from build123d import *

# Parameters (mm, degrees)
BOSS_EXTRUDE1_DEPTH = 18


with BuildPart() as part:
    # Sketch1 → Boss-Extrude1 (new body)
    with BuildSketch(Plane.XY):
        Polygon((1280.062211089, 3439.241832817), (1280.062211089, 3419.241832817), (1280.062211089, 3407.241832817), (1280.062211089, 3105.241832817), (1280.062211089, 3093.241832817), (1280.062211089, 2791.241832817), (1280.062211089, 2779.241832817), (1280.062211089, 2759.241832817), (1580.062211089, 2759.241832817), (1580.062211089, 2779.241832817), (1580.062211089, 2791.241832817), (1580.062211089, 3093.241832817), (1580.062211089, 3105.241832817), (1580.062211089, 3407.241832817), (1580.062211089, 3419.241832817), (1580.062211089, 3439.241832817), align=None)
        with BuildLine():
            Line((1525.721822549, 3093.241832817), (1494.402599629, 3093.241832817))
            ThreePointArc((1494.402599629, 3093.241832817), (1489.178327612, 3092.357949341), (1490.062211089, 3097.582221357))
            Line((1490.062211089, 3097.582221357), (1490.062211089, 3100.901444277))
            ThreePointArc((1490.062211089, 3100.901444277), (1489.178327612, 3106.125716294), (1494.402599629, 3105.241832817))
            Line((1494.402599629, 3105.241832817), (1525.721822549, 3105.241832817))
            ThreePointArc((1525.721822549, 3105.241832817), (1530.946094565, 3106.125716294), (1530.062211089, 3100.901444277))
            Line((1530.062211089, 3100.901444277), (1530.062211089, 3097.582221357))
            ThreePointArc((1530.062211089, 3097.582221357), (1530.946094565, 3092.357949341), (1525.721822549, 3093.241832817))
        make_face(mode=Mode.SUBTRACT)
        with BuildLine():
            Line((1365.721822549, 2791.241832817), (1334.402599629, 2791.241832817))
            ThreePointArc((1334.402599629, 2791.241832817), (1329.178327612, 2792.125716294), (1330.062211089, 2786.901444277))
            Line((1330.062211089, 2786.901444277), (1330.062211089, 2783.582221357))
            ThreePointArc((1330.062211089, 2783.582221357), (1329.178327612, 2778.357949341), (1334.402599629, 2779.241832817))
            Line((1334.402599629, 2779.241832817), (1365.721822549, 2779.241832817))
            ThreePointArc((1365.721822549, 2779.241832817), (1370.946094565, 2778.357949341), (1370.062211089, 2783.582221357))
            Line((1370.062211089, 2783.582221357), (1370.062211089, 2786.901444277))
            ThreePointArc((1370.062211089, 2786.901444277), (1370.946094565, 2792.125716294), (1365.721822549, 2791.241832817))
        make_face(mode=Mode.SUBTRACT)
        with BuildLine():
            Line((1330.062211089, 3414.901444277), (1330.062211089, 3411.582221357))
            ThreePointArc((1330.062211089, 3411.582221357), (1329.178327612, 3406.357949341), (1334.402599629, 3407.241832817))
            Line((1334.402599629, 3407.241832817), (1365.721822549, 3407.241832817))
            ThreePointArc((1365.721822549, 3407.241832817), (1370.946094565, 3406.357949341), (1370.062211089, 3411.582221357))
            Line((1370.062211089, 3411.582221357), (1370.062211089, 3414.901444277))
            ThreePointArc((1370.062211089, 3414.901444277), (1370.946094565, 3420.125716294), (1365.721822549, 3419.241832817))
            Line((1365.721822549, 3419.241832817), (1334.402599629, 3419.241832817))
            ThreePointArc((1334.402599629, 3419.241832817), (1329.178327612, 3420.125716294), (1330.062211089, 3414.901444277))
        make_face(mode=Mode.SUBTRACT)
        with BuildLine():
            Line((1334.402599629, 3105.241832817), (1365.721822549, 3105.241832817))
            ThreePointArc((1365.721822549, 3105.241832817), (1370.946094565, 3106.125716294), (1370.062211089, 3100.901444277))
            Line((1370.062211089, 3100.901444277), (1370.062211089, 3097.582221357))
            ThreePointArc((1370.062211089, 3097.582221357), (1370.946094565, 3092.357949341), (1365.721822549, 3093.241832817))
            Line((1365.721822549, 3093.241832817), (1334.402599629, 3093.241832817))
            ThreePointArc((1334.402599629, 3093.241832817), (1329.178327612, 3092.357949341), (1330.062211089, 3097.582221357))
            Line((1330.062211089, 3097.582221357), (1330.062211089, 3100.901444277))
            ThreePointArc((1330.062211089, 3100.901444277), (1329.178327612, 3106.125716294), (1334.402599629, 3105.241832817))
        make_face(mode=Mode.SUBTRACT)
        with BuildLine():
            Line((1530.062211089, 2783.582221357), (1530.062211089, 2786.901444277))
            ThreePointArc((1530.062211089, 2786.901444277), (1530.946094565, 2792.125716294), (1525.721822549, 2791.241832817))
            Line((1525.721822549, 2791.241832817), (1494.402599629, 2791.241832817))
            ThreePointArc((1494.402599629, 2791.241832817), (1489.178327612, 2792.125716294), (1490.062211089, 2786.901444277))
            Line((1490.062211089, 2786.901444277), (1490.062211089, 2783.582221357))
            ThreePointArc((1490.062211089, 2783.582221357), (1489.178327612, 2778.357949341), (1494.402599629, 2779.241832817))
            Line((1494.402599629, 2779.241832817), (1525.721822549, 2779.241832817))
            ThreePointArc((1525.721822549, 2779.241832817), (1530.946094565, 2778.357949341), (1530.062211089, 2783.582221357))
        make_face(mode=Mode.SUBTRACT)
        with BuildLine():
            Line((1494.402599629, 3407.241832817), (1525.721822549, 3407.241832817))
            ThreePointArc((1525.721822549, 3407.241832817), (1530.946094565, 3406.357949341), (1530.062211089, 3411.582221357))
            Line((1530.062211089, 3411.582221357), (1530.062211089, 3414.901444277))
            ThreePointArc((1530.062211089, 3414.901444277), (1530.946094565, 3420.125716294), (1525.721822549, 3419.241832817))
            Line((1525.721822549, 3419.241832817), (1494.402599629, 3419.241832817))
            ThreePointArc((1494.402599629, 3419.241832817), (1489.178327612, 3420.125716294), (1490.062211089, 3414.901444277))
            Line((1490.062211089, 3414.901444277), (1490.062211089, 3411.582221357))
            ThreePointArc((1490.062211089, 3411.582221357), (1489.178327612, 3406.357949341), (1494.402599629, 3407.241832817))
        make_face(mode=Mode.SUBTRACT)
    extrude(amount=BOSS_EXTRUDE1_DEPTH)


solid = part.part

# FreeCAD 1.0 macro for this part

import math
import FreeCAD as App
import Part
import Sketcher
from FreeCAD import Vector


def add_polygon(sketch, points):
    """Adds a closed chain of lines whose ends are joined by coincident constraints."""
    first, n = sketch.GeometryCount, len(points)
    for a, b in zip(points, points[1:] + points[:1]):
        sketch.addGeometry(Part.LineSegment(App.Vector(*a, 0), App.Vector(*b, 0)), False)
    for i in range(n):
        sketch.addConstraint(Sketcher.Constraint("Coincident", first + i, 2, first + (i + 1) % n, 1))

doc = App.newDocument("Part")
body = doc.addObject("PartDesign::Body", "Body")

# Sketch on XY plane
sketch1 = doc.addObject("Sketcher::SketchObject", "Sketch")
body.addObject(sketch1)
sketch1.AttachmentSupport = (doc.XY_Plane, [""])
sketch1.MapMode = "FlatFace"
add_polygon(sketch1, [(1280.062211, 3439.241833), (1280.062211, 2759.241833), (1580.062211, 2759.241833), (1580.062211, 3439.241833)])  # lines 0-3
sketch1.addGeometry(Part.LineSegment(Vector(1334.4026, 2791.241833, 0), Vector(1365.721823, 2791.241833, 0)), False)  # 4
sketch1.addGeometry(Part.ArcOfCircle(Part.Circle(Vector(1368.647998, 2789.827619, 0), Vector(0, 0, 1), 3.25), math.radians(-64.20563), math.radians(154.20563)), False)  # 5
sketch1.addGeometry(Part.LineSegment(Vector(1370.062211, 2786.901444, 0), Vector(1370.062211, 2783.582221, 0)), False)  # 6
sketch1.addGeometry(Part.ArcOfCircle(Part.Circle(Vector(1368.647998, 2780.656046, 0), Vector(0, 0, 1), 3.25), math.radians(-154.20563), math.radians(64.20563)), False)  # 7
sketch1.addGeometry(Part.LineSegment(Vector(1365.721823, 2779.241833, 0), Vector(1334.4026, 2779.241833, 0)), False)  # 8
sketch1.addGeometry(Part.ArcOfCircle(Part.Circle(Vector(1331.476425, 2780.656046, 0), Vector(0, 0, 1), 3.25), math.radians(115.79437), math.radians(334.20563)), False)  # 9
sketch1.addGeometry(Part.LineSegment(Vector(1330.062211, 2783.582221, 0), Vector(1330.062211, 2786.901444, 0)), False)  # 10
sketch1.addGeometry(Part.ArcOfCircle(Part.Circle(Vector(1331.476425, 2789.827619, 0), Vector(0, 0, 1), 3.25), math.radians(25.79437), math.radians(244.20563)), False)  # 11
sketch1.addGeometry(Part.ArcOfCircle(Part.Circle(Vector(1331.476425, 3103.827619, 0), Vector(0, 0, 1), 3.25), math.radians(25.79437), math.radians(244.20563)), False)  # 12
sketch1.addGeometry(Part.LineSegment(Vector(1334.4026, 3105.241833, 0), Vector(1365.721823, 3105.241833, 0)), False)  # 13
sketch1.addGeometry(Part.ArcOfCircle(Part.Circle(Vector(1368.647998, 3103.827619, 0), Vector(0, 0, 1), 3.25), math.radians(-64.20563), math.radians(154.20563)), False)  # 14
sketch1.addGeometry(Part.LineSegment(Vector(1370.062211, 3100.901444, 0), Vector(1370.062211, 3097.582221, 0)), False)  # 15
sketch1.addGeometry(Part.ArcOfCircle(Part.Circle(Vector(1368.647998, 3094.656046, 0), Vector(0, 0, 1), 3.25), math.radians(-154.20563), math.radians(64.20563)), False)  # 16
sketch1.addGeometry(Part.LineSegment(Vector(1365.721823, 3093.241833, 0), Vector(1334.4026, 3093.241833, 0)), False)  # 17
sketch1.addGeometry(Part.ArcOfCircle(Part.Circle(Vector(1331.476425, 3094.656046, 0), Vector(0, 0, 1), 3.25), math.radians(115.79437), math.radians(334.20563)), False)  # 18
sketch1.addGeometry(Part.LineSegment(Vector(1330.062211, 3097.582221, 0), Vector(1330.062211, 3100.901444, 0)), False)  # 19
sketch1.addGeometry(Part.LineSegment(Vector(1530.062211, 2786.901444, 0), Vector(1530.062211, 2783.582221, 0)), False)  # 20
sketch1.addGeometry(Part.ArcOfCircle(Part.Circle(Vector(1528.647998, 2780.656046, 0), Vector(0, 0, 1), 3.25), math.radians(-154.20563), math.radians(64.20563)), False)  # 21
sketch1.addGeometry(Part.LineSegment(Vector(1525.721823, 2779.241833, 0), Vector(1494.4026, 2779.241833, 0)), False)  # 22
sketch1.addGeometry(Part.ArcOfCircle(Part.Circle(Vector(1491.476425, 2780.656046, 0), Vector(0, 0, 1), 3.25), math.radians(115.79437), math.radians(334.20563)), False)  # 23
sketch1.addGeometry(Part.LineSegment(Vector(1490.062211, 2783.582221, 0), Vector(1490.062211, 2786.901444, 0)), False)  # 24
sketch1.addGeometry(Part.ArcOfCircle(Part.Circle(Vector(1491.476425, 2789.827619, 0), Vector(0, 0, 1), 3.25), math.radians(25.79437), math.radians(244.20563)), False)  # 25
sketch1.addGeometry(Part.LineSegment(Vector(1494.4026, 2791.241833, 0), Vector(1525.721823, 2791.241833, 0)), False)  # 26
sketch1.addGeometry(Part.ArcOfCircle(Part.Circle(Vector(1528.647998, 2789.827619, 0), Vector(0, 0, 1), 3.25), math.radians(-64.20563), math.radians(154.20563)), False)  # 27
sketch1.addGeometry(Part.ArcOfCircle(Part.Circle(Vector(1528.647998, 3094.656046, 0), Vector(0, 0, 1), 3.25), math.radians(-154.20563), math.radians(64.20563)), False)  # 28
sketch1.addGeometry(Part.LineSegment(Vector(1525.721823, 3093.241833, 0), Vector(1494.4026, 3093.241833, 0)), False)  # 29
sketch1.addGeometry(Part.ArcOfCircle(Part.Circle(Vector(1491.476425, 3094.656046, 0), Vector(0, 0, 1), 3.25), math.radians(115.79437), math.radians(334.20563)), False)  # 30
sketch1.addGeometry(Part.LineSegment(Vector(1490.062211, 3097.582221, 0), Vector(1490.062211, 3100.901444, 0)), False)  # 31
sketch1.addGeometry(Part.ArcOfCircle(Part.Circle(Vector(1491.476425, 3103.827619, 0), Vector(0, 0, 1), 3.25), math.radians(25.79437), math.radians(244.20563)), False)  # 32
sketch1.addGeometry(Part.LineSegment(Vector(1494.4026, 3105.241833, 0), Vector(1525.721823, 3105.241833, 0)), False)  # 33
sketch1.addGeometry(Part.ArcOfCircle(Part.Circle(Vector(1528.647998, 3103.827619, 0), Vector(0, 0, 1), 3.25), math.radians(-64.20563), math.radians(154.20563)), False)  # 34
sketch1.addGeometry(Part.LineSegment(Vector(1530.062211, 3100.901444, 0), Vector(1530.062211, 3097.582221, 0)), False)  # 35
sketch1.addGeometry(Part.LineSegment(Vector(1330.062211, 3411.582221, 0), Vector(1330.062211, 3414.901444, 0)), False)  # 36
sketch1.addGeometry(Part.ArcOfCircle(Part.Circle(Vector(1331.476425, 3417.827619, 0), Vector(0, 0, 1), 3.25), math.radians(25.79437), math.radians(244.20563)), False)  # 37
sketch1.addGeometry(Part.LineSegment(Vector(1334.4026, 3419.241833, 0), Vector(1365.721823, 3419.241833, 0)), False)  # 38
sketch1.addGeometry(Part.ArcOfCircle(Part.Circle(Vector(1368.647998, 3417.827619, 0), Vector(0, 0, 1), 3.25), math.radians(-64.20563), math.radians(154.20563)), False)  # 39
sketch1.addGeometry(Part.LineSegment(Vector(1370.062211, 3414.901444, 0), Vector(1370.062211, 3411.582221, 0)), False)  # 40
sketch1.addGeometry(Part.ArcOfCircle(Part.Circle(Vector(1368.647998, 3408.656046, 0), Vector(0, 0, 1), 3.25), math.radians(-154.20563), math.radians(64.20563)), False)  # 41
sketch1.addGeometry(Part.LineSegment(Vector(1365.721823, 3407.241833, 0), Vector(1334.4026, 3407.241833, 0)), False)  # 42
sketch1.addGeometry(Part.ArcOfCircle(Part.Circle(Vector(1331.476425, 3408.656046, 0), Vector(0, 0, 1), 3.25), math.radians(115.79437), math.radians(334.20563)), False)  # 43
sketch1.addGeometry(Part.LineSegment(Vector(1525.721823, 3407.241833, 0), Vector(1494.4026, 3407.241833, 0)), False)  # 44
sketch1.addGeometry(Part.ArcOfCircle(Part.Circle(Vector(1491.476425, 3408.656046, 0), Vector(0, 0, 1), 3.25), math.radians(115.79437), math.radians(334.20563)), False)  # 45
sketch1.addGeometry(Part.LineSegment(Vector(1490.062211, 3411.582221, 0), Vector(1490.062211, 3414.901444, 0)), False)  # 46
sketch1.addGeometry(Part.ArcOfCircle(Part.Circle(Vector(1491.476425, 3417.827619, 0), Vector(0, 0, 1), 3.25), math.radians(25.79437), math.radians(244.20563)), False)  # 47
sketch1.addGeometry(Part.LineSegment(Vector(1494.4026, 3419.241833, 0), Vector(1525.721823, 3419.241833, 0)), False)  # 48
sketch1.addGeometry(Part.ArcOfCircle(Part.Circle(Vector(1528.647998, 3417.827619, 0), Vector(0, 0, 1), 3.25), math.radians(-64.20563), math.radians(154.20563)), False)  # 49
sketch1.addGeometry(Part.LineSegment(Vector(1530.062211, 3414.901444, 0), Vector(1530.062211, 3411.582221, 0)), False)  # 50
sketch1.addGeometry(Part.ArcOfCircle(Part.Circle(Vector(1528.647998, 3408.656046, 0), Vector(0, 0, 1), 3.25), math.radians(-154.20563), math.radians(64.20563)), False)  # 51
sketch1.addConstraint([
    Sketcher.Constraint("Coincident", 4, 2, 5, 2),
    Sketcher.Constraint("Coincident", 5, 1, 6, 1),
    Sketcher.Constraint("Coincident", 6, 2, 7, 2),
    Sketcher.Constraint("Coincident", 7, 1, 8, 1),
    Sketcher.Constraint("Coincident", 8, 2, 9, 2),
    Sketcher.Constraint("Coincident", 9, 1, 10, 1),
    Sketcher.Constraint("Coincident", 10, 2, 11, 2),
    Sketcher.Constraint("Coincident", 11, 1, 4, 1),
    Sketcher.Constraint("Coincident", 12, 1, 13, 1),
    Sketcher.Constraint("Coincident", 13, 2, 14, 2),
    Sketcher.Constraint("Coincident", 14, 1, 15, 1),
    Sketcher.Constraint("Coincident", 15, 2, 16, 2),
    Sketcher.Constraint("Coincident", 16, 1, 17, 1),
    Sketcher.Constraint("Coincident", 17, 2, 18, 2),
    Sketcher.Constraint("Coincident", 18, 1, 19, 1),
    Sketcher.Constraint("Coincident", 19, 2, 12, 2),
    Sketcher.Constraint("Coincident", 20, 2, 21, 2),
    Sketcher.Constraint("Coincident", 21, 1, 22, 1),
    Sketcher.Constraint("Coincident", 22, 2, 23, 2),
    Sketcher.Constraint("Coincident", 23, 1, 24, 1),
    Sketcher.Constraint("Coincident", 24, 2, 25, 2),
    Sketcher.Constraint("Coincident", 25, 1, 26, 1),
    Sketcher.Constraint("Coincident", 26, 2, 27, 2),
    Sketcher.Constraint("Coincident", 27, 1, 20, 1),
    Sketcher.Constraint("Coincident", 28, 1, 29, 1),
    Sketcher.Constraint("Coincident", 29, 2, 30, 2),
    Sketcher.Constraint("Coincident", 30, 1, 31, 1),
    Sketcher.Constraint("Coincident", 31, 2, 32, 2),
    Sketcher.Constraint("Coincident", 32, 1, 33, 1),
    Sketcher.Constraint("Coincident", 33, 2, 34, 2),
    Sketcher.Constraint("Coincident", 34, 1, 35, 1),
    Sketcher.Constraint("Coincident", 35, 2, 28, 2),
    Sketcher.Constraint("Coincident", 36, 2, 37, 2),
    Sketcher.Constraint("Coincident", 37, 1, 38, 1),
    Sketcher.Constraint("Coincident", 38, 2, 39, 2),
    Sketcher.Constraint("Coincident", 39, 1, 40, 1),
    Sketcher.Constraint("Coincident", 40, 2, 41, 2),
    Sketcher.Constraint("Coincident", 41, 1, 42, 1),
    Sketcher.Constraint("Coincident", 42, 2, 43, 2),
    Sketcher.Constraint("Coincident", 43, 1, 36, 1),
    Sketcher.Constraint("Coincident", 44, 2, 45, 2),
    Sketcher.Constraint("Coincident", 45, 1, 46, 1),
    Sketcher.Constraint("Coincident", 46, 2, 47, 2),
    Sketcher.Constraint("Coincident", 47, 1, 48, 1),
    Sketcher.Constraint("Coincident", 48, 2, 49, 2),
    Sketcher.Constraint("Coincident", 49, 1, 50, 1),
    Sketcher.Constraint("Coincident", 50, 2, 51, 2),
    Sketcher.Constraint("Coincident", 51, 1, 44, 1),
    Sketcher.Constraint("Vertical", 0),
    Sketcher.Constraint("Horizontal", 1),
    Sketcher.Constraint("Vertical", 2),
    Sketcher.Constraint("Horizontal", 3),
    Sketcher.Constraint("Horizontal", 4),
    Sketcher.Constraint("Vertical", 6),
    Sketcher.Constraint("Horizontal", 8),
    Sketcher.Constraint("Vertical", 10),
    Sketcher.Constraint("Horizontal", 13),
    Sketcher.Constraint("Vertical", 15),
    Sketcher.Constraint("Horizontal", 17),
    Sketcher.Constraint("Vertical", 19),
    Sketcher.Constraint("Vertical", 20),
    Sketcher.Constraint("Horizontal", 22),
    Sketcher.Constraint("Vertical", 24),
    Sketcher.Constraint("Horizontal", 26),
    Sketcher.Constraint("Horizontal", 29),
    Sketcher.Constraint("Vertical", 31),
    Sketcher.Constraint("Horizontal", 33),
    Sketcher.Constraint("Vertical", 35),
    Sketcher.Constraint("Vertical", 36),
    Sketcher.Constraint("Horizontal", 38),
    Sketcher.Constraint("Vertical", 40),
    Sketcher.Constraint("Horizontal", 42),
    Sketcher.Constraint("Horizontal", 44),
    Sketcher.Constraint("Vertical", 46),
    Sketcher.Constraint("Horizontal", 48),
    Sketcher.Constraint("Vertical", 50),
    Sketcher.Constraint("Equal", 5, 7),
    Sketcher.Constraint("Equal", 7, 9),
    Sketcher.Constraint("Equal", 9, 11),
    Sketcher.Constraint("Equal", 11, 12),
    Sketcher.Constraint("Equal", 12, 14),
    Sketcher.Constraint("Equal", 14, 16),
    Sketcher.Constraint("Equal", 16, 18),
    Sketcher.Constraint("Equal", 18, 21),
    Sketcher.Constraint("Equal", 21, 23),
    Sketcher.Constraint("Equal", 23, 25),
    Sketcher.Constraint("Equal", 25, 27),
    Sketcher.Constraint("Equal", 27, 28),
    Sketcher.Constraint("Equal", 28, 30),
    Sketcher.Constraint("Equal", 30, 32),
    Sketcher.Constraint("Equal", 32, 34),
    Sketcher.Constraint("Equal", 34, 37),
    Sketcher.Constraint("Equal", 37, 39),
    Sketcher.Constraint("Equal", 39, 41),
    Sketcher.Constraint("Equal", 41, 43),
    Sketcher.Constraint("Equal", 43, 45),
    Sketcher.Constraint("Equal", 45, 47),
    Sketcher.Constraint("Equal", 47, 49),
    Sketcher.Constraint("Equal", 49, 51),
    Sketcher.Constraint("Horizontal", 7, 3, 9, 3),
    Sketcher.Constraint("Horizontal", 5, 3, 11, 3),
    Sketcher.Constraint("Horizontal", 12, 3, 14, 3),
    Sketcher.Constraint("Horizontal", 16, 3, 18, 3),
    Sketcher.Constraint("Horizontal", 9, 3, 21, 3),
    Sketcher.Constraint("Horizontal", 21, 3, 23, 3),
    Sketcher.Constraint("Horizontal", 11, 3, 25, 3),
    Sketcher.Constraint("Horizontal", 25, 3, 27, 3),
    Sketcher.Constraint("Horizontal", 18, 3, 28, 3),
    Sketcher.Constraint("Horizontal", 28, 3, 30, 3),
    Sketcher.Constraint("Horizontal", 14, 3, 32, 3),
    Sketcher.Constraint("Horizontal", 32, 3, 34, 3),
    Sketcher.Constraint("Horizontal", 37, 3, 39, 3),
    Sketcher.Constraint("Horizontal", 41, 3, 43, 3),
    Sketcher.Constraint("Horizontal", 43, 3, 45, 3),
    Sketcher.Constraint("Horizontal", 39, 3, 47, 3),
    Sketcher.Constraint("Horizontal", 47, 3, 49, 3),
    Sketcher.Constraint("Horizontal", 45, 3, 51, 3),
    Sketcher.Constraint("Horizontal", 6, 2, 9, 1),
    Sketcher.Constraint("Horizontal", 5, 1, 10, 2),
    Sketcher.Constraint("Horizontal", 15, 2, 18, 1),
    Sketcher.Constraint("Horizontal", 14, 1, 19, 2),
    Sketcher.Constraint("Horizontal", 9, 1, 20, 2),
    Sketcher.Constraint("Horizontal", 8, 2, 21, 1),
    Sketcher.Constraint("Horizontal", 20, 2, 23, 1),
    Sketcher.Constraint("Horizontal", 10, 2, 24, 2),
    Sketcher.Constraint("Horizontal", 11, 1, 25, 1),
    Sketcher.Constraint("Horizontal", 24, 2, 27, 1),
    Sketcher.Constraint("Horizontal", 17, 2, 28, 1),
    Sketcher.Constraint("Horizontal", 18, 1, 30, 1),
    Sketcher.Constraint("Horizontal", 19, 2, 31, 2),
    Sketcher.Constraint("Horizontal", 13, 2, 32, 1),
    Sketcher.Constraint("Horizontal", 31, 2, 34, 1),
    Sketcher.Constraint("Horizontal", 30, 1, 35, 2),
    Sketcher.Constraint("Horizontal", 36, 2, 39, 1),
    Sketcher.Constraint("Horizontal", 40, 2, 43, 1),
    Sketcher.Constraint("Horizontal", 42, 2, 44, 2),
    Sketcher.Constraint("Horizontal", 43, 1, 45, 1),
    Sketcher.Constraint("Horizontal", 39, 1, 46, 2),
    Sketcher.Constraint("Horizontal", 38, 2, 47, 1),
    Sketcher.Constraint("Horizontal", 46, 2, 49, 1),
    Sketcher.Constraint("Horizontal", 45, 1, 50, 2),
    Sketcher.Constraint("Vertical", 5, 3, 7, 3),
    Sketcher.Constraint("Vertical", 11, 3, 12, 3),
    Sketcher.Constraint("Vertical", 7, 3, 14, 3),
    Sketcher.Constraint("Vertical", 14, 3, 16, 3),
    Sketcher.Constraint("Vertical", 27, 3, 28, 3),
    Sketcher.Constraint("Vertical", 25, 3, 30, 3),
    Sketcher.Constraint("Vertical", 18, 3, 37, 3),
    Sketcher.Constraint("Vertical", 16, 3, 39, 3),
    Sketcher.Constraint("Vertical", 39, 3, 41, 3),
    Sketcher.Constraint("Vertical", 32, 3, 45, 3),
    Sketcher.Constraint("Vertical", 34, 3, 49, 3),
    Sketcher.Constraint("Vertical", 4, 2, 7, 1),
    Sketcher.Constraint("Vertical", 11, 1, 12, 1),
    Sketcher.Constraint("Vertical", 6, 2, 14, 1),
    Sketcher.Constraint("Vertical", 13, 2, 16, 1),
    Sketcher.Constraint("Vertical", 19, 2, 36, 2),
    Sketcher.Constraint("Vertical", 17, 2, 37, 1),
    Sketcher.Constraint("Vertical", 38, 2, 41, 1),
    Sketcher.Constraint("Equal", 17, 22),
    Sketcher.Constraint("Equal", 10, 15),
    Sketcher.Constraint("Equal", 35, 36),
    Sketcher.Constraint("DistanceX", 1, 1, 1, 2, 300.0),
    Sketcher.Constraint("DistanceY", 0, 2, 0, 1, 680.0),
    Sketcher.Constraint("Radius", 5, 3.25),
    Sketcher.Constraint("DistanceX", -1, 1, 8, 2, 1334.4026),
    Sketcher.Constraint("DistanceX", -1, 1, 22, 2, 1494.4026),
    Sketcher.Constraint("DistanceX", 4, 1, 4, 2, 31.319223),
    Sketcher.Constraint("DistanceY", 6, 2, 6, 1, 3.319223),
    Sketcher.Constraint("DistanceY", -1, 1, 5, 3, 2789.827619),
    Sketcher.Constraint("DistanceY", -1, 1, 12, 3, 3103.827619),
    Sketcher.Constraint("DistanceY", -1, 1, 37, 3, 3417.827619),
    Sketcher.Constraint("DistanceX", -1, 1, 0, 2, 1280.062211),
    Sketcher.Constraint("DistanceX", -1, 1, 5, 1, 1370.062211),
    Sketcher.Constraint("DistanceY", -1, 1, 6, 2, 2783.582221),
    Sketcher.Constraint("DistanceY", -1, 1, 0, 2, 2759.241833),
])
pad1 = doc.addObject("PartDesign::Pad", "Pad")
body.addObject(pad1)
pad1.Profile = sketch1
pad1.Length = 18

doc.recompute()
